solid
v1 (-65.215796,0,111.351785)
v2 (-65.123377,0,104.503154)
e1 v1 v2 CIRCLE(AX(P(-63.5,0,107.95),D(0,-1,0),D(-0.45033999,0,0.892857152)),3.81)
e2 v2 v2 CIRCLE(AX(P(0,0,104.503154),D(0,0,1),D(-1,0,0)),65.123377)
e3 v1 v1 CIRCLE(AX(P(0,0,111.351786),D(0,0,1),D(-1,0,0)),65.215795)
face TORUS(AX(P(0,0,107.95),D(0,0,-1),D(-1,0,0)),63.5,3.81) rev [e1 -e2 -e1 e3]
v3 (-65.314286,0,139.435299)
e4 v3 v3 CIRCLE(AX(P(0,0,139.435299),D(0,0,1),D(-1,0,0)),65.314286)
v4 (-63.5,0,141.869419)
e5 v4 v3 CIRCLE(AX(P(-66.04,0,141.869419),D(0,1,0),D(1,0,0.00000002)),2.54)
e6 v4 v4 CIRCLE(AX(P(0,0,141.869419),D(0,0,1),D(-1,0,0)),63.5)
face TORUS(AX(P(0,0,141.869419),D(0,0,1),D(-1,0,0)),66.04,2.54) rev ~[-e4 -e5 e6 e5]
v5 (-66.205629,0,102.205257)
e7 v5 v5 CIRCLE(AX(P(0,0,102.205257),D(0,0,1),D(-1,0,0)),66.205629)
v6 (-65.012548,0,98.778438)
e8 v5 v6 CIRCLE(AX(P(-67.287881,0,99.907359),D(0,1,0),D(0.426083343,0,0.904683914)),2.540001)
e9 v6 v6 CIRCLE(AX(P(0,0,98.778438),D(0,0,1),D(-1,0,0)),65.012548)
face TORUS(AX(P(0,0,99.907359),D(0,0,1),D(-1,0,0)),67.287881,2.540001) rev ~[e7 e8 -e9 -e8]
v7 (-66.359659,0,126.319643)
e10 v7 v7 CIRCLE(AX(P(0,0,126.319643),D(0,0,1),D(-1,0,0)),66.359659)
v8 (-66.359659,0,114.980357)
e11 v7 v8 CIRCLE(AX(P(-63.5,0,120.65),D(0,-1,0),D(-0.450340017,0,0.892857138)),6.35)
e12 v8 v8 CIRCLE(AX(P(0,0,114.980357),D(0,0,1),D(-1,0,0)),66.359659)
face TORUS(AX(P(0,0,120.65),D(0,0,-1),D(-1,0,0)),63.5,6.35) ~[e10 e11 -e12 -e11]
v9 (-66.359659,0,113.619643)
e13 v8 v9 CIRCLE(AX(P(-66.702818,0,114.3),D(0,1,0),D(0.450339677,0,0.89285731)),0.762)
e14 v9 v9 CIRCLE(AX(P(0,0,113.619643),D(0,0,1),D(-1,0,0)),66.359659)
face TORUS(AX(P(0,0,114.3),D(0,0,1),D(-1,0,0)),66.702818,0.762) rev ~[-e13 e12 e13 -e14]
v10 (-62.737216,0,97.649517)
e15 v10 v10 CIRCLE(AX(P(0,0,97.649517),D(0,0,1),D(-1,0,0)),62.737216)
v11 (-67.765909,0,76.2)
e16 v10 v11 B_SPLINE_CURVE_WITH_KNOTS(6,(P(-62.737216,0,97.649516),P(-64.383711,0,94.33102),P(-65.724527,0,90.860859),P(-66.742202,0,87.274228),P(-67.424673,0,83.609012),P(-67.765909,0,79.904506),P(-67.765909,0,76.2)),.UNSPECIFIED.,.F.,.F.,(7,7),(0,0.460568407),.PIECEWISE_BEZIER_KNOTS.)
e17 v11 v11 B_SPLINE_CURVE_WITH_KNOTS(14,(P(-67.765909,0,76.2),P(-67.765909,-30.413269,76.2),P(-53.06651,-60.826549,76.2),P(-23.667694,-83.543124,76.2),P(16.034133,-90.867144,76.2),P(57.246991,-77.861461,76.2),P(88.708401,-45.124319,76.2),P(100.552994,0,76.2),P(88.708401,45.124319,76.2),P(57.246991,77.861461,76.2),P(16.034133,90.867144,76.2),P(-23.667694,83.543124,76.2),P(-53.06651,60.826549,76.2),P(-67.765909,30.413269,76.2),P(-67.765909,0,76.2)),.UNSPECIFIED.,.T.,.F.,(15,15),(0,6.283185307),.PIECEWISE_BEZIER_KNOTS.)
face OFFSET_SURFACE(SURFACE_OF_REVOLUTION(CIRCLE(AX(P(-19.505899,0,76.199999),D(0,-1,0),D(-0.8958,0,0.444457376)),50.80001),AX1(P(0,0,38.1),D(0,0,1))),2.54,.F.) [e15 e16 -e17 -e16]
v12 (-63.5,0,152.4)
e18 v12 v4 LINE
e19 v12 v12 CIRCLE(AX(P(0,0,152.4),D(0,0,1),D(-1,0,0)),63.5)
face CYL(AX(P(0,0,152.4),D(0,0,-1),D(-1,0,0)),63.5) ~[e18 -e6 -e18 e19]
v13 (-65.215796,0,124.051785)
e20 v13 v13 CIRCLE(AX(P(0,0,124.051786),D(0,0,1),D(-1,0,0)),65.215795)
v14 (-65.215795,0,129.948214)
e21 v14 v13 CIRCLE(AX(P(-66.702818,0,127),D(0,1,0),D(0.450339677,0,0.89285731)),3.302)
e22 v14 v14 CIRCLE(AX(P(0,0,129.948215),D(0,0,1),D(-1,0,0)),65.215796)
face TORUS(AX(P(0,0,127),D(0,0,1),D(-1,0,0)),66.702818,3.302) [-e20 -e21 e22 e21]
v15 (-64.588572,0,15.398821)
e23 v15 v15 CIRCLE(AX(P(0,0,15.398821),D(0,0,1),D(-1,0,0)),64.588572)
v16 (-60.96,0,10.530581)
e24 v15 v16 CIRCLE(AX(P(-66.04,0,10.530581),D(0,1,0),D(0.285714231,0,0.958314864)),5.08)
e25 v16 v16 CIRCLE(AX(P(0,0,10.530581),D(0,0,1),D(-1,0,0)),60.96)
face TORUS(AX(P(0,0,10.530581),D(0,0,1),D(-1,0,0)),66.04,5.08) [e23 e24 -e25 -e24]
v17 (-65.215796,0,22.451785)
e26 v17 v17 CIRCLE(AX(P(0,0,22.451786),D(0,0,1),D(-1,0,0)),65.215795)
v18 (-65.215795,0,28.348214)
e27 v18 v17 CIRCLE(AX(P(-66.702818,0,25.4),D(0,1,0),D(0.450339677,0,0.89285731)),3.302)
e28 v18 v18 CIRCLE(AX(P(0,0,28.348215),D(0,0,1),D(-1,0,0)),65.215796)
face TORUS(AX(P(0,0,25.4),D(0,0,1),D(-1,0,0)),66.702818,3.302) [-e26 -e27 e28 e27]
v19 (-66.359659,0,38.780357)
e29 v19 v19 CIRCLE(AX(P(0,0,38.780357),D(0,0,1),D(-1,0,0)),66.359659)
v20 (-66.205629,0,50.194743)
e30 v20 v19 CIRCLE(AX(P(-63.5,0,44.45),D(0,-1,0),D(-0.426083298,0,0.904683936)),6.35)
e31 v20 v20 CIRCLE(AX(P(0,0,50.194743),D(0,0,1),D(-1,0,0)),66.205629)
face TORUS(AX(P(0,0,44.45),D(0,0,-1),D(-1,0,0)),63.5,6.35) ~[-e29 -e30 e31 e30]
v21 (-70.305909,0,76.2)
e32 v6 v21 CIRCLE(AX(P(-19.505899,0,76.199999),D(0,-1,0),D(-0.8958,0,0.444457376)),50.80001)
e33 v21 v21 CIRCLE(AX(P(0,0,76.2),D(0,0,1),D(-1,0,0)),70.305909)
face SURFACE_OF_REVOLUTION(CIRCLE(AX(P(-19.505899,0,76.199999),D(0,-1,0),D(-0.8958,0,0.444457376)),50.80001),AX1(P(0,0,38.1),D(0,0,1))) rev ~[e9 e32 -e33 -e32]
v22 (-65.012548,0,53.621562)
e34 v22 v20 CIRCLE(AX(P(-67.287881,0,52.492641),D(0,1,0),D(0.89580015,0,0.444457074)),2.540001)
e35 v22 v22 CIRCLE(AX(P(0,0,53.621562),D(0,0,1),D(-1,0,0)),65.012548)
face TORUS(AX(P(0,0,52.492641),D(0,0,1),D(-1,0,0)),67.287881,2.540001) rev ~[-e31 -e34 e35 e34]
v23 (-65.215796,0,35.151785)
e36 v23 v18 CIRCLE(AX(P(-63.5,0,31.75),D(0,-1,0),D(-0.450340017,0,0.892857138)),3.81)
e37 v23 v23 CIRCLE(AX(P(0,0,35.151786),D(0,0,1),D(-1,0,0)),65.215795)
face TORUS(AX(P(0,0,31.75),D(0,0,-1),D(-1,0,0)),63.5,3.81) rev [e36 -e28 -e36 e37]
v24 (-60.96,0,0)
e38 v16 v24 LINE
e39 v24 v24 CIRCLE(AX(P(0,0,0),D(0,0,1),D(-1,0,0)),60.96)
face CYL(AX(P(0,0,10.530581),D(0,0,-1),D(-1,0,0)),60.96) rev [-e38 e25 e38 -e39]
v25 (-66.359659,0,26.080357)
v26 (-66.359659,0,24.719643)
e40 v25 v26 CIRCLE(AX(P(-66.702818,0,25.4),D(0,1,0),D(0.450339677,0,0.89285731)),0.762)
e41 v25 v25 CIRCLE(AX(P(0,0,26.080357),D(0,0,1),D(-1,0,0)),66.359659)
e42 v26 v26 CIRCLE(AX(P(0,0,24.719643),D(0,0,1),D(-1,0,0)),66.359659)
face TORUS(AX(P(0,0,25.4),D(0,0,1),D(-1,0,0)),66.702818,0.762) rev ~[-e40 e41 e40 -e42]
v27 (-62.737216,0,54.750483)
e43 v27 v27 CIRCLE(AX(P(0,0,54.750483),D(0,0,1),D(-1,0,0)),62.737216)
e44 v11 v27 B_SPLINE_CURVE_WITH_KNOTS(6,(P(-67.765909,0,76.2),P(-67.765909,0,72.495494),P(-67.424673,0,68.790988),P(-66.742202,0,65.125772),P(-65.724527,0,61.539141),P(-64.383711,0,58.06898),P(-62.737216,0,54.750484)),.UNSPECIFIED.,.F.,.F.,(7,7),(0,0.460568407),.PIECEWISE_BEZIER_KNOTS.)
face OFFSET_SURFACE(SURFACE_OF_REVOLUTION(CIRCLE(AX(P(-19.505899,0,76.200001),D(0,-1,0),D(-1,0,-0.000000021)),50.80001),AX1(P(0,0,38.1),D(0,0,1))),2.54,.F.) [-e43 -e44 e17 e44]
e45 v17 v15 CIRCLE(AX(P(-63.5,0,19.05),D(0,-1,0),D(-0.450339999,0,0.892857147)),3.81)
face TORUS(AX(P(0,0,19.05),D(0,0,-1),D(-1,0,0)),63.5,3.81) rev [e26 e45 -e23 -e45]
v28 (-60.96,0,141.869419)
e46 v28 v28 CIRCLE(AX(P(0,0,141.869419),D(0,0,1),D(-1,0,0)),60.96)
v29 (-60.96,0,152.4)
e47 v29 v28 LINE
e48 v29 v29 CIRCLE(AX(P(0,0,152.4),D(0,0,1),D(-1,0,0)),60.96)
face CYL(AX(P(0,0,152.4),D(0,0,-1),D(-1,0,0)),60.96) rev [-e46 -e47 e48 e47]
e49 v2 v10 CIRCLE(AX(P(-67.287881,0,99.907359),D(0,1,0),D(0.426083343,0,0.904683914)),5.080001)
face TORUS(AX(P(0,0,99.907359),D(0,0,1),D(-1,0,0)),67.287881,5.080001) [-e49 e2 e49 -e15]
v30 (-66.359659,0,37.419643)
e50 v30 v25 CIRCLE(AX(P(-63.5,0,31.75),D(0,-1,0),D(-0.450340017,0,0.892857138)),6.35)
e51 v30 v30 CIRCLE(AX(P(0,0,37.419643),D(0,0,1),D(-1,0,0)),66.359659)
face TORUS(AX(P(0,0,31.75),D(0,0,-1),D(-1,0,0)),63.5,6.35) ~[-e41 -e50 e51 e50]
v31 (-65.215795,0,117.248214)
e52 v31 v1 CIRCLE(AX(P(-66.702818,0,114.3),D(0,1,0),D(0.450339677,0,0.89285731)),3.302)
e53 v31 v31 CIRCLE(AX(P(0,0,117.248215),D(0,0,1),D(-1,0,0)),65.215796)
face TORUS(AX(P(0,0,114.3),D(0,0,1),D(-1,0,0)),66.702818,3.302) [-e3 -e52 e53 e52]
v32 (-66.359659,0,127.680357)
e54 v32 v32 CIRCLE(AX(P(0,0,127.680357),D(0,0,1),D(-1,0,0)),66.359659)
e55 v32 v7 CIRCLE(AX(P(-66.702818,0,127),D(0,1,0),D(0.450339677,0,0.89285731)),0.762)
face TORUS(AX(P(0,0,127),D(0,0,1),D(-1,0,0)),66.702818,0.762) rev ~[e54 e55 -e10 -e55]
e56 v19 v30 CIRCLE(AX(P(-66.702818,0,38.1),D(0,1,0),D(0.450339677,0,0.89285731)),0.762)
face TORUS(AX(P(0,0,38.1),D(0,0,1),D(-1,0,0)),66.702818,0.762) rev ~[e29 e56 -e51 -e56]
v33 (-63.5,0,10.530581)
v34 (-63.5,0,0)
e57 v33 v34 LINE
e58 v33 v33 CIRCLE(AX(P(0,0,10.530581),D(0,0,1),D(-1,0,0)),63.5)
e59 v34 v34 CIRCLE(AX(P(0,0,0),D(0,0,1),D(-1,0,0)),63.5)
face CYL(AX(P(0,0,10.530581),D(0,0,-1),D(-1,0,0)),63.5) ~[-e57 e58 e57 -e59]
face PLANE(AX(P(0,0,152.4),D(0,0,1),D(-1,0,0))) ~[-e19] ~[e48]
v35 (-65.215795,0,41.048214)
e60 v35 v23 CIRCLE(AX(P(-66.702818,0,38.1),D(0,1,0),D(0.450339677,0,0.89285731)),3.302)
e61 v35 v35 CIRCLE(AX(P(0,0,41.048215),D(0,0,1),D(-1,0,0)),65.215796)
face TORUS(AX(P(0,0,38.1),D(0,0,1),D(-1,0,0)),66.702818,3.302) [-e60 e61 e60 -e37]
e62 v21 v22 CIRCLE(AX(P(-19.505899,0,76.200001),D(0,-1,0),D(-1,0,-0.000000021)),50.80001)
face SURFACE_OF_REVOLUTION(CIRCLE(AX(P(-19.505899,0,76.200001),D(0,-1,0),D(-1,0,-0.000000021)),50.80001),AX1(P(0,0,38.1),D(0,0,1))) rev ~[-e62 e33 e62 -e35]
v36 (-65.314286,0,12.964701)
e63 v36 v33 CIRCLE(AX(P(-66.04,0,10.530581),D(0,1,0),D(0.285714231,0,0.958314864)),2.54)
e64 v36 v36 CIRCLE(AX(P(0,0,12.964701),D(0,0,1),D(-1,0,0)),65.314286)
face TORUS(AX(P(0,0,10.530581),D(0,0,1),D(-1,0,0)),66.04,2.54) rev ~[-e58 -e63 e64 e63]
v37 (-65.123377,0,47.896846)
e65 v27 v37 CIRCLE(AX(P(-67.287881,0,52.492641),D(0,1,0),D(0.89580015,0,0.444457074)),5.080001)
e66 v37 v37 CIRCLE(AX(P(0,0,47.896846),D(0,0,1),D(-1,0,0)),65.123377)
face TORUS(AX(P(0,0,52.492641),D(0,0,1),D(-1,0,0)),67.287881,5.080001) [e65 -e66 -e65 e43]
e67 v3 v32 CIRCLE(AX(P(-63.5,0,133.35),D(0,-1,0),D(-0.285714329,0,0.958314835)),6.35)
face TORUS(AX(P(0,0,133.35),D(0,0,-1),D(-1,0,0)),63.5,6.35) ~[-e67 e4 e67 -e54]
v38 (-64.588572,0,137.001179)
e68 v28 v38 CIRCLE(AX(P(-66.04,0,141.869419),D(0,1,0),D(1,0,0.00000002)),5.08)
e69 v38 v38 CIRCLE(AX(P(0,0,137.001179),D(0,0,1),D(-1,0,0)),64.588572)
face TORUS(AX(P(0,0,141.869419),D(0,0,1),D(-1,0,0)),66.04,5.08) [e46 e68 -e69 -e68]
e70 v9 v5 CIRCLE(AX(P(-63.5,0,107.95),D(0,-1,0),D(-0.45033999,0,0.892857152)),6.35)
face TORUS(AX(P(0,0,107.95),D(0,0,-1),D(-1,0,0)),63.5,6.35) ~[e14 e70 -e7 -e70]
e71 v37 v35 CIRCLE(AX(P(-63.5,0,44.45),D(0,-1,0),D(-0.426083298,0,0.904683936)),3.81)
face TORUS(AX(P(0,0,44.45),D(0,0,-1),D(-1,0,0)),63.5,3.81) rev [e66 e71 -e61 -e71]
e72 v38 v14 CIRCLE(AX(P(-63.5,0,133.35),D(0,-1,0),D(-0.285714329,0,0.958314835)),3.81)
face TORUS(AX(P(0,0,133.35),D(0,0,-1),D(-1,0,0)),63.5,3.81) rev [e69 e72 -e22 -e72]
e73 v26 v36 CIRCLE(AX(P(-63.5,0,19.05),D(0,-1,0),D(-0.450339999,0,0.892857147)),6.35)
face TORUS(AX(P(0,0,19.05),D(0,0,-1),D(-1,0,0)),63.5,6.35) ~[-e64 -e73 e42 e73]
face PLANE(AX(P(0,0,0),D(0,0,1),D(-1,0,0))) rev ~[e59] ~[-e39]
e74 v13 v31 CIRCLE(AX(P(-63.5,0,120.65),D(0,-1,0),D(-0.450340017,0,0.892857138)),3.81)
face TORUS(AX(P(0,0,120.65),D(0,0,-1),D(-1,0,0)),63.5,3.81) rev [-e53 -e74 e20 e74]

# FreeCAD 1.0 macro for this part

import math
import FreeCAD as App
import Part
import Sketcher
from FreeCAD import Vector
Q = App.Units.Quantity


def faces_at(feature, points):
    """Names of the faces that lie closest to the given points."""
    faces = feature.Shape.Faces
    near = lambda p: min(range(len(faces)), key=lambda i: faces[i].distToShape(Part.Vertex(*p))[0])
    return sorted({f"Face{near(p) + 1}" for p in points})

doc = App.newDocument("Part")
body = doc.addObject("PartDesign::Body", "Body")

# Sketch on XZ plane
sketch1 = body.newObject("Sketcher::SketchObject", "Sketch")
sketch1.AttachmentSupport = (doc.getObject("XZ_Plane"), [""])
sketch1.MapMode = "FlatFace"
sketch1.addGeometry(Part.LineSegment(Vector(-63.5, 0, 0), Vector(0, 0, 0)), False)
sketch1.addGeometry(Part.LineSegment(Vector(0, 0, 0), Vector(0, 152.4, 0)), False)
sketch1.addGeometry(Part.LineSegment(Vector(0, 152.4, 0), Vector(-63.5, 152.4, 0)), False)
sketch1.addGeometry(Part.LineSegment(Vector(-63.5, 152.4, 0), Vector(-63.5, 141.9, 0)), False)
sketch1.addGeometry(Part.ArcOfCircle(Part.Circle(Vector(-66, 141.9, 0), Vector(0, 0, 1), 2.5), math.radians(-73), math.radians(0)), False)
sketch1.addGeometry(Part.ArcOfCircle(Part.Circle(Vector(-63.5, 133.3, 0), Vector(0, 0, 1), 6.3), math.radians(107), math.radians(243)), False)
sketch1.addGeometry(Part.ArcOfCircle(Part.Circle(Vector(-66.7, 127, 0), Vector(0, 0, 1), 0.8), math.radians(-63), math.radians(63)), False)
sketch1.addGeometry(Part.ArcOfCircle(Part.Circle(Vector(-63.5, 120.7, 0), Vector(0, 0, 1), 6.4), math.radians(117), math.radians(243)), False)
sketch1.addGeometry(Part.ArcOfCircle(Part.Circle(Vector(-66.7, 114.3, 0), Vector(0, 0, 1), 0.8), math.radians(-63), math.radians(63)), False)
sketch1.addGeometry(Part.ArcOfCircle(Part.Circle(Vector(-63.5, 108, 0), Vector(0, 0, 1), 6.4), math.radians(117), math.radians(245)), False)
sketch1.addGeometry(Part.ArcOfCircle(Part.Circle(Vector(-67.3, 99.9, 0), Vector(0, 0, 1), 2.5), math.radians(-26), math.radians(65)), False)
sketch1.addGeometry(Part.ArcOfCircle(Part.Circle(Vector(-19.5, 76.2, 0), Vector(0, 0, 1), 50.8), math.radians(154), math.radians(180)), False)
sketch1.addGeometry(Part.ArcOfCircle(Part.Circle(Vector(-19.5, 76.2, 0), Vector(0, 0, 1), 50.8), math.radians(-180), math.radians(-154)), False)
sketch1.addGeometry(Part.ArcOfCircle(Part.Circle(Vector(-67.3, 52.5, 0), Vector(0, 0, 1), 2.5), math.radians(-65), math.radians(26)), False)
sketch1.addGeometry(Part.ArcOfCircle(Part.Circle(Vector(-63.5, 44.4, 0), Vector(0, 0, 1), 6.4), math.radians(115), math.radians(243)), False)
sketch1.addGeometry(Part.ArcOfCircle(Part.Circle(Vector(-66.7, 38.1, 0), Vector(0, 0, 1), 0.8), math.radians(-63), math.radians(63)), False)
sketch1.addGeometry(Part.ArcOfCircle(Part.Circle(Vector(-63.5, 31.8, 0), Vector(0, 0, 1), 6.4), math.radians(117), math.radians(243)), False)
sketch1.addGeometry(Part.ArcOfCircle(Part.Circle(Vector(-66.7, 25.4, 0), Vector(0, 0, 1), 0.8), math.radians(-63), math.radians(63)), False)
sketch1.addGeometry(Part.ArcOfCircle(Part.Circle(Vector(-63.5, 19.1, 0), Vector(0, 0, 1), 6.3), math.radians(117), math.radians(253)), False)
sketch1.addGeometry(Part.ArcOfCircle(Part.Circle(Vector(-66, 10.5, 0), Vector(0, 0, 1), 2.5), math.radians(0), math.radians(73)), False)
sketch1.addGeometry(Part.LineSegment(Vector(-63.5, 10.5, 0), Vector(-63.5, 0, 0)), False)
sketch1.addConstraint(Sketcher.Constraint("Coincident", 0, 2, 1, 1))
sketch1.addConstraint(Sketcher.Constraint("Coincident", 1, 2, 2, 1))
sketch1.addConstraint(Sketcher.Constraint("Coincident", 2, 2, 3, 1))
sketch1.addConstraint(Sketcher.Constraint("Tangent", 3, 2, 4, 2))
sketch1.addConstraint(Sketcher.Constraint("Tangent", 4, 1, 5, 1))
sketch1.addConstraint(Sketcher.Constraint("Tangent", 5, 2, 6, 2))
sketch1.addConstraint(Sketcher.Constraint("Tangent", 6, 1, 7, 1))
sketch1.addConstraint(Sketcher.Constraint("Tangent", 7, 2, 8, 2))
sketch1.addConstraint(Sketcher.Constraint("Tangent", 8, 1, 9, 1))
sketch1.addConstraint(Sketcher.Constraint("Tangent", 9, 2, 10, 2))
sketch1.addConstraint(Sketcher.Constraint("Tangent", 10, 1, 11, 1))
sketch1.addConstraint(Sketcher.Constraint("Tangent", 11, 2, 12, 1))
sketch1.addConstraint(Sketcher.Constraint("Tangent", 12, 2, 13, 2))
sketch1.addConstraint(Sketcher.Constraint("Tangent", 13, 1, 14, 1))
sketch1.addConstraint(Sketcher.Constraint("Tangent", 14, 2, 15, 2))
sketch1.addConstraint(Sketcher.Constraint("Tangent", 15, 1, 16, 1))
sketch1.addConstraint(Sketcher.Constraint("Tangent", 16, 2, 17, 2))
sketch1.addConstraint(Sketcher.Constraint("Tangent", 17, 1, 18, 1))
sketch1.addConstraint(Sketcher.Constraint("Tangent", 18, 2, 19, 2))
sketch1.addConstraint(Sketcher.Constraint("Tangent", 19, 1, 20, 1))
sketch1.addConstraint(Sketcher.Constraint("Coincident", 20, 2, 0, 1))
sketch1.addConstraint(Sketcher.Constraint("Horizontal", 0))
sketch1.addConstraint(Sketcher.Constraint("Vertical", 1))
sketch1.addConstraint(Sketcher.Constraint("Horizontal", 2))
sketch1.addConstraint(Sketcher.Constraint("Vertical", 3))
sketch1.addConstraint(Sketcher.Constraint("Vertical", 20))
sketch1.addConstraint(Sketcher.Constraint("Coincident", 0, 2, -1, 1))
sketch1.addConstraint(Sketcher.Constraint("Equal", 5, 7))
sketch1.addConstraint(Sketcher.Constraint("Equal", 6, 8))
sketch1.addConstraint(Sketcher.Constraint("Equal", 7, 9))
sketch1.addConstraint(Sketcher.Constraint("Equal", 4, 10))
sketch1.addConstraint(Sketcher.Constraint("Equal", 11, 12))
sketch1.addConstraint(Sketcher.Constraint("Equal", 10, 13))
sketch1.addConstraint(Sketcher.Constraint("Equal", 9, 14))
sketch1.addConstraint(Sketcher.Constraint("Equal", 8, 15))
sketch1.addConstraint(Sketcher.Constraint("Equal", 14, 16))
sketch1.addConstraint(Sketcher.Constraint("Equal", 15, 17))
sketch1.addConstraint(Sketcher.Constraint("Equal", 16, 18))
sketch1.addConstraint(Sketcher.Constraint("Equal", 13, 19))
sketch1.addConstraint(Sketcher.Constraint("Horizontal", 12, 3, 11, 2))
sketch1.addConstraint(Sketcher.Constraint("Vertical", 5, 3, 7, 3))
sketch1.addConstraint(Sketcher.Constraint("Vertical", 6, 3, 8, 3))
sketch1.addConstraint(Sketcher.Constraint("Vertical", 7, 3, 9, 3))
sketch1.addConstraint(Sketcher.Constraint("Vertical", 10, 3, 13, 3))
sketch1.addConstraint(Sketcher.Constraint("Vertical", 9, 3, 14, 3))
sketch1.addConstraint(Sketcher.Constraint("Vertical", 8, 3, 15, 3))
sketch1.addConstraint(Sketcher.Constraint("Vertical", 14, 3, 16, 3))
sketch1.addConstraint(Sketcher.Constraint("Vertical", 15, 3, 17, 3))
sketch1.addConstraint(Sketcher.Constraint("Vertical", 16, 3, 18, 3))
sketch1.addConstraint(Sketcher.Constraint("Vertical", 4, 3, 19, 3))
sketch1.addConstraint(Sketcher.Constraint("Vertical", 18, 3, 2, 2))
sketch1.addConstraint(Sketcher.Constraint("Equal", 3, 20))
sketch1.addConstraint(Sketcher.Constraint("Radius", 4, Q("0.1 in")))
sketch1.addConstraint(Sketcher.Constraint("DistanceY", 1, 1, 1, 2, Q("6 in")))
sketch1.addConstraint(Sketcher.Constraint("Radius", 5, Q("0.25 in")))
sketch1.addConstraint(Sketcher.Constraint("Radius", 6, Q("0.03 in")))
sketch1.addConstraint(Sketcher.Constraint("DistanceX", 0, 1, 0, 2, Q("2.5 in")))
sketch1.addConstraint(Sketcher.Constraint("DistanceY", -1, 1, 6, 3, Q("5 in")))
sketch1.addConstraint(Sketcher.Constraint("DistanceY", 9, 3, 5, 3, Q("1 in")))
sketch1.addConstraint(Sketcher.Constraint("Radius", 11, Q("50.80001 mm")))
sketch1.addConstraint(Sketcher.Constraint("DistanceX", 11, 2, 10, 1, Q("0.2084 in")))
revolution = body.newObject("PartDesign::Revolution", "Revolution")
revolution.Profile = sketch1
revolution.ReferenceAxis = (sketch1, ["V_Axis"])
revolution.Angle = 360
doc.recompute()

thickness = body.newObject("PartDesign::Thickness", "Thickness")
thickness.Base = (revolution, faces_at(revolution, [(0, 0, 152.4), (0, 0, 0)]))
thickness.Value = Q("0.1 in")
thickness.Reversed = True
thickness.Join = "Arc"

doc.recompute()
